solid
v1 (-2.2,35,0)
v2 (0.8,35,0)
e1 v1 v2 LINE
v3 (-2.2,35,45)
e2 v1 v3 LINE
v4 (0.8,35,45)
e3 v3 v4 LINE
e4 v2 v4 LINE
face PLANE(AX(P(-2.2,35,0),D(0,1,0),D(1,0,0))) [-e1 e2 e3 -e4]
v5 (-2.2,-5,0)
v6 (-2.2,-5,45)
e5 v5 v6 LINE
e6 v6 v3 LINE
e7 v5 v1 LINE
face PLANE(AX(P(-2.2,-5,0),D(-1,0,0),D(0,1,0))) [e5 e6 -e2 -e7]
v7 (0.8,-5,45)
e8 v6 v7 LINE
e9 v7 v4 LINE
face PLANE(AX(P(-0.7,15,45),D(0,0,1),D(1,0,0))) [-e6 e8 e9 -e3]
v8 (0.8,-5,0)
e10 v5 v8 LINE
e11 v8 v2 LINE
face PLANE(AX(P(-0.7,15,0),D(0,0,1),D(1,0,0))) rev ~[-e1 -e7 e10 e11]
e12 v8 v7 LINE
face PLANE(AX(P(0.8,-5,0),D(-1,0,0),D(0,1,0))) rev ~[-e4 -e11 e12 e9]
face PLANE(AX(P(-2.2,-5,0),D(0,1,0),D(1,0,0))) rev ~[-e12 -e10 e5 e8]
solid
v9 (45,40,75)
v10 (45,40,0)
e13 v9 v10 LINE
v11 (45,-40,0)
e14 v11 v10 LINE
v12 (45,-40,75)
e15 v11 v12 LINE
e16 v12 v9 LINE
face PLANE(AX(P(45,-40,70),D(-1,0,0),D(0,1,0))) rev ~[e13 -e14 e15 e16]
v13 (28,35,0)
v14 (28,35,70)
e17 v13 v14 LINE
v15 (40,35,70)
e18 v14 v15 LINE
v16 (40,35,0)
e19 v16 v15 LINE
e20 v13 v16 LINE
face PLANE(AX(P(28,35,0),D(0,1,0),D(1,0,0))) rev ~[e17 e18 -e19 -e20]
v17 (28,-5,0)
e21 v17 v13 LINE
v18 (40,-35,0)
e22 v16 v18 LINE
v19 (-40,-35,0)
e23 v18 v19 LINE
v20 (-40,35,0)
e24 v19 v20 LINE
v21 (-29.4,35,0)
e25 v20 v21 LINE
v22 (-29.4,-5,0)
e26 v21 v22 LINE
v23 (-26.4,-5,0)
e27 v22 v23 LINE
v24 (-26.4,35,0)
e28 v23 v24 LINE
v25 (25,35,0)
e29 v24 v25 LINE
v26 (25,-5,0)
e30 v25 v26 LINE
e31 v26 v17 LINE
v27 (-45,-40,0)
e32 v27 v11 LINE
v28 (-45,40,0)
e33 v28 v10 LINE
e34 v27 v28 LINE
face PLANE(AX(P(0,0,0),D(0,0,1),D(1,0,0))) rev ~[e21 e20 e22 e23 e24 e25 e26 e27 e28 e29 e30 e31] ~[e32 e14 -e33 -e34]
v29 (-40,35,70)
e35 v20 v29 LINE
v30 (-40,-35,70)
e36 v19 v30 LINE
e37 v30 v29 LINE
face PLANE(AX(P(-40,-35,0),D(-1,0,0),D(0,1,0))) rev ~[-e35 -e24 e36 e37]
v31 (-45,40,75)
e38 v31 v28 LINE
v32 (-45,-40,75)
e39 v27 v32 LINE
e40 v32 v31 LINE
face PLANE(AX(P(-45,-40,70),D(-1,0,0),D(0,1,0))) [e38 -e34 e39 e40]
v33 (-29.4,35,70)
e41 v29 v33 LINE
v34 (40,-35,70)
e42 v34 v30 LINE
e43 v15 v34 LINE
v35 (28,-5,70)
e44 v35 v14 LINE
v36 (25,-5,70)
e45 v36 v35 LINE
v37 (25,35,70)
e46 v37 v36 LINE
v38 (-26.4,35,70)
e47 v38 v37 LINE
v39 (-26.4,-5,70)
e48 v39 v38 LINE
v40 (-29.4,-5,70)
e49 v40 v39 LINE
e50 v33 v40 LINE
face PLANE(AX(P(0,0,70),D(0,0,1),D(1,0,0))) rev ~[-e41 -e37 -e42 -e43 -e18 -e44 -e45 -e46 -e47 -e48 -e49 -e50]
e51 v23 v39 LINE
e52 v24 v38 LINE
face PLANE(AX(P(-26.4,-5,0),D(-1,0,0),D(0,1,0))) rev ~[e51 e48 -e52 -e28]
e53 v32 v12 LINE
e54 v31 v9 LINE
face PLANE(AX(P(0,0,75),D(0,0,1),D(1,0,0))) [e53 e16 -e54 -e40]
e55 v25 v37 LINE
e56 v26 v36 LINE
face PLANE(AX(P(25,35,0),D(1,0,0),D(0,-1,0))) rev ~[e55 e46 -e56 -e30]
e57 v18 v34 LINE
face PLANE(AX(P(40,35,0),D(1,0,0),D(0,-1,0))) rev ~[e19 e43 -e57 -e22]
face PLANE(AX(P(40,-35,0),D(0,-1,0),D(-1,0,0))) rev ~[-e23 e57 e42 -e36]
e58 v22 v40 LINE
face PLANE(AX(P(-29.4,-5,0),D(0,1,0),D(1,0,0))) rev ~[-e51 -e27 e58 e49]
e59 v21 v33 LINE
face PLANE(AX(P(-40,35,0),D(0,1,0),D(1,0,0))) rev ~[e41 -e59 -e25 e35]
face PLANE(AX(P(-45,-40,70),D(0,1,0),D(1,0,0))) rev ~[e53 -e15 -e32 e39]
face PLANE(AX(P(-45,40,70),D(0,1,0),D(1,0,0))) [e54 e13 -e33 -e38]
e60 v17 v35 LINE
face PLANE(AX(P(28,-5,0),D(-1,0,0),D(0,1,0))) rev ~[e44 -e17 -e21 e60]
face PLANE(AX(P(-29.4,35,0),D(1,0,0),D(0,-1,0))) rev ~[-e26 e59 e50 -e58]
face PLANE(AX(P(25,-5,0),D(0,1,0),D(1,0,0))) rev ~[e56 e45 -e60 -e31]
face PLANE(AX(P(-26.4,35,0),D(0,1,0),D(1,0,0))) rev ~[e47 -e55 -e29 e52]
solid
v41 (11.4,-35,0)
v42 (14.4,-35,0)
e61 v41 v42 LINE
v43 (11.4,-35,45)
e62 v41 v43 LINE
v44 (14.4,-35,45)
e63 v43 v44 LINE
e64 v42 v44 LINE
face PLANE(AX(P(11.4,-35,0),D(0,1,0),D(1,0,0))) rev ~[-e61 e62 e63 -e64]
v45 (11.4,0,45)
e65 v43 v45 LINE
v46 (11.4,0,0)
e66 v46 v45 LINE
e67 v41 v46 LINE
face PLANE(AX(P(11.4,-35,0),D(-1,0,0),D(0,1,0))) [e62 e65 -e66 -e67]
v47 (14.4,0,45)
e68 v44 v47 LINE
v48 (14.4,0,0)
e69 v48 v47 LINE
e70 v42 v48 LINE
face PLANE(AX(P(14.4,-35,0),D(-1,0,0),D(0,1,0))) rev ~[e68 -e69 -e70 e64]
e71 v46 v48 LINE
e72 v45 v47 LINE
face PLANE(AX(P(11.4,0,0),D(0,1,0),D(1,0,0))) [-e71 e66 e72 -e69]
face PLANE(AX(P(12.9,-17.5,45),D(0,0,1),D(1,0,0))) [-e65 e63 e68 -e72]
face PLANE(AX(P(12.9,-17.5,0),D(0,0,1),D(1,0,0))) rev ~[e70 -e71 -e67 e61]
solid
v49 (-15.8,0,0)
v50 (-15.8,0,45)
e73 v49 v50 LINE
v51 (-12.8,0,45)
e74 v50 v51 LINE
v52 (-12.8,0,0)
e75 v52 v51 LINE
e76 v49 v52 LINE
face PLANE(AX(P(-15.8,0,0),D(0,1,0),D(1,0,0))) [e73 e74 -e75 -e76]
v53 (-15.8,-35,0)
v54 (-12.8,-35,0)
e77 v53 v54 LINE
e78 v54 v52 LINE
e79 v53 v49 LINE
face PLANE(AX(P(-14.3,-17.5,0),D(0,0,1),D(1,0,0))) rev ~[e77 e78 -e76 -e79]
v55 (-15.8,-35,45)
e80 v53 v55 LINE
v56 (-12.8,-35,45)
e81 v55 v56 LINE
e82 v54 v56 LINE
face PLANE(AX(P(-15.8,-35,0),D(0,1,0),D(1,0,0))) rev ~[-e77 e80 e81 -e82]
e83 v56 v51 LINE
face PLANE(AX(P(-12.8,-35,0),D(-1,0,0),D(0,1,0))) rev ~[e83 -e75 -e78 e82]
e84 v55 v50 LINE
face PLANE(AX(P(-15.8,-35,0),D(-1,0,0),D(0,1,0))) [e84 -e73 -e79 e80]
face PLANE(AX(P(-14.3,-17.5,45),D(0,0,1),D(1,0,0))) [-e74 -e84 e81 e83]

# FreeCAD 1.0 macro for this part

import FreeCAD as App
import Part
import Sketcher

V = App.Vector

doc = App.newDocument("Part")
body = doc.addObject("PartDesign::Body", "Body")
body.AllowCompound = True

sketch1 = body.newObject("Sketcher::SketchObject", "Sketch")
sketch1.AttachmentSupport = (doc.getObject("XY_Plane"), [""])
sketch1.MapMode = "FlatFace"
sketch1.addGeometry([
    Part.LineSegment(V(-15.8, 0, 0), V(-15.8, -35, 0)),
    Part.LineSegment(V(-15.8, -35, 0), V(-12.8, -35, 0)),
    Part.LineSegment(V(-12.8, -35, 0), V(-12.8, 0, 0)),
    Part.LineSegment(V(-12.8, 0, 0), V(-15.8, 0, 0)),
    Part.LineSegment(V(-2.2, 35, 0), V(-2.2, -5, 0)),
    Part.LineSegment(V(-2.2, -5, 0), V(0.8, -5, 0)),
    Part.LineSegment(V(0.8, -5, 0), V(0.8, 35, 0)),
    Part.LineSegment(V(0.8, 35, 0), V(-2.2, 35, 0)),
    Part.LineSegment(V(11.4, 0, 0), V(11.4, -35, 0)),
    Part.LineSegment(V(11.4, -35, 0), V(14.4, -35, 0)),
    Part.LineSegment(V(14.4, -35, 0), V(14.4, 0, 0)),
    Part.LineSegment(V(14.4, 0, 0), V(11.4, 0, 0)),
], False)
sketch1.addConstraint([
    Sketcher.Constraint("Coincident", 0, 2, 1, 1),
    Sketcher.Constraint("Coincident", 1, 2, 2, 1),
    Sketcher.Constraint("Coincident", 2, 2, 3, 1),
    Sketcher.Constraint("Coincident", 3, 2, 0, 1),
    Sketcher.Constraint("Coincident", 4, 2, 5, 1),
    Sketcher.Constraint("Coincident", 5, 2, 6, 1),
    Sketcher.Constraint("Coincident", 6, 2, 7, 1),
    Sketcher.Constraint("Coincident", 7, 2, 4, 1),
    Sketcher.Constraint("Coincident", 8, 2, 9, 1),
    Sketcher.Constraint("Coincident", 9, 2, 10, 1),
    Sketcher.Constraint("Coincident", 10, 2, 11, 1),
    Sketcher.Constraint("Coincident", 11, 2, 8, 1),
    Sketcher.Constraint("Vertical", 0),
    Sketcher.Constraint("Horizontal", 1),
    Sketcher.Constraint("Vertical", 2),
    Sketcher.Constraint("Horizontal", 3),
    Sketcher.Constraint("Vertical", 4),
    Sketcher.Constraint("Horizontal", 5),
    Sketcher.Constraint("Vertical", 6),
    Sketcher.Constraint("Horizontal", 7),
    Sketcher.Constraint("Vertical", 8),
    Sketcher.Constraint("Horizontal", 9),
    Sketcher.Constraint("Vertical", 10),
    Sketcher.Constraint("Horizontal", 11),
    Sketcher.Constraint("PointOnObject", 2, 2, -1),
    Sketcher.Constraint("PointOnObject", 10, 2, -1),
    Sketcher.Constraint("Horizontal", 1, 2, 8, 2),
    Sketcher.Constraint("Equal", 3, 5),
    Sketcher.Constraint("Equal", 7, 9),
    Sketcher.Constraint("DistanceX", 1, 1, 1, 2, 3.0),
    Sketcher.Constraint("DistanceY", 0, 2, 0, 1, 35.0),
    Sketcher.Constraint("DistanceY", 4, 2, 4, 1, 40.0),
    Sketcher.Constraint("DistanceY", 4, 2, -1, 1, 5.0),
    Sketcher.Constraint("DistanceX", 0, 2, -1, 1, 15.8),
    Sketcher.Constraint("DistanceX", 4, 2, -1, 1, 2.2),
    Sketcher.Constraint("DistanceX", -1, 1, 8, 2, 11.4),
])
pad1 = body.newObject("PartDesign::Pad", "Pad")
pad1.Profile = sketch1
pad1.Length = 45
body2 = doc.addObject("PartDesign::Body", "Body001")

sketch2 = body2.newObject("Sketcher::SketchObject", "Sketch001")
sketch2.AttachmentSupport = (doc.getObject("XY_Plane001"), [""])
sketch2.MapMode = "FlatFace"
sketch2.addGeometry([
    Part.LineSegment(V(-45, 40, 0), V(-45, -40, 0)),
    Part.LineSegment(V(-45, -40, 0), V(45, -40, 0)),
    Part.LineSegment(V(45, -40, 0), V(45, 40, 0)),
    Part.LineSegment(V(45, 40, 0), V(-45, 40, 0)),
    Part.LineSegment(V(28, -5, 0), V(28, 35, 0)),
    Part.LineSegment(V(28, 35, 0), V(40, 35, 0)),
    Part.LineSegment(V(40, 35, 0), V(40, -35, 0)),
    Part.LineSegment(V(40, -35, 0), V(-40, -35, 0)),
    Part.LineSegment(V(-40, -35, 0), V(-40, 35, 0)),
    Part.LineSegment(V(-40, 35, 0), V(-29.4, 35, 0)),
    Part.LineSegment(V(-29.4, 35, 0), V(-29.4, -5, 0)),
    Part.LineSegment(V(-29.4, -5, 0), V(-26.4, -5, 0)),
    Part.LineSegment(V(-26.4, -5, 0), V(-26.4, 35, 0)),
    Part.LineSegment(V(-26.4, 35, 0), V(25, 35, 0)),
    Part.LineSegment(V(25, 35, 0), V(25, -5, 0)),
    Part.LineSegment(V(25, -5, 0), V(28, -5, 0)),
], False)
sketch2.addConstraint([
    Sketcher.Constraint("Coincident", 0, 2, 1, 1),
    Sketcher.Constraint("Coincident", 1, 2, 2, 1),
    Sketcher.Constraint("Coincident", 2, 2, 3, 1),
    Sketcher.Constraint("Coincident", 3, 2, 0, 1),
    Sketcher.Constraint("Coincident", 4, 2, 5, 1),
    Sketcher.Constraint("Coincident", 5, 2, 6, 1),
    Sketcher.Constraint("Coincident", 6, 2, 7, 1),
    Sketcher.Constraint("Coincident", 7, 2, 8, 1),
    Sketcher.Constraint("Coincident", 8, 2, 9, 1),
    Sketcher.Constraint("Coincident", 9, 2, 10, 1),
    Sketcher.Constraint("Coincident", 10, 2, 11, 1),
    Sketcher.Constraint("Coincident", 11, 2, 12, 1),
    Sketcher.Constraint("Coincident", 12, 2, 13, 1),
    Sketcher.Constraint("Coincident", 13, 2, 14, 1),
    Sketcher.Constraint("Coincident", 14, 2, 15, 1),
    Sketcher.Constraint("Coincident", 15, 2, 4, 1),
    Sketcher.Constraint("Vertical", 0),
    Sketcher.Constraint("Horizontal", 1),
    Sketcher.Constraint("Vertical", 2),
    Sketcher.Constraint("Horizontal", 3),
    Sketcher.Constraint("Vertical", 4),
    Sketcher.Constraint("Horizontal", 5),
    Sketcher.Constraint("Vertical", 6),
    Sketcher.Constraint("Horizontal", 7),
    Sketcher.Constraint("Vertical", 8),
    Sketcher.Constraint("Horizontal", 9),
    Sketcher.Constraint("Vertical", 10),
    Sketcher.Constraint("Horizontal", 11),
    Sketcher.Constraint("Vertical", 12),
    Sketcher.Constraint("Horizontal", 13),
    Sketcher.Constraint("Vertical", 14),
    Sketcher.Constraint("Horizontal", 15),
    Sketcher.Constraint("Symmetric", 0, 2, 2, 2, -1, 1),
    Sketcher.Constraint("Symmetric", 5, 2, 7, 2, -1, 1),
    Sketcher.Constraint("Horizontal", 5, 2, 8, 2),
    Sketcher.Constraint("Horizontal", 9, 2, 12, 2),
    Sketcher.Constraint("Horizontal", 11, 2, 14, 2),
    Sketcher.Constraint("Equal", 11, 15),
    Sketcher.Constraint("Equal", 7, 0),
    Sketcher.Constraint("DistanceX", 1, 1, 1, 2, 90.0),
    Sketcher.Constraint("DistanceX", 5, 1, 5, 2, 12.0),
    Sketcher.Constraint("DistanceX", 7, 2, 7, 1, 80.0),
    Sketcher.Constraint("DistanceX", 11, 1, 11, 2, 3.0),
    Sketcher.Constraint("DistanceY", 4, 1, 4, 2, 40.0),
    Sketcher.Constraint("DistanceY", 6, 2, 6, 1, 70.0),
    Sketcher.Constraint("DistanceX", 9, 1, 9, 2, 10.6),
])
pad2 = body2.newObject("PartDesign::Pad", "Pad001")
pad2.Profile = sketch2
pad2.Length = 70

sketch3 = body2.newObject("Sketcher::SketchObject", "Sketch002")
sketch3.AttachmentSupport = (doc.getObject("XY_Plane001"), [""])
sketch3.MapMode = "FlatFace"
sketch3.AttachmentOffset = App.Placement(V(0, 0, 70), App.Rotation())
sketch3.addGeometry([
    Part.LineSegment(V(-45, 40, 0), V(-45, -40, 0)),
    Part.LineSegment(V(-45, -40, 0), V(45, -40, 0)),
    Part.LineSegment(V(45, -40, 0), V(45, 40, 0)),
    Part.LineSegment(V(45, 40, 0), V(-45, 40, 0)),
], False)
sketch3.addConstraint([
    Sketcher.Constraint("Coincident", 0, 2, 1, 1),
    Sketcher.Constraint("Coincident", 1, 2, 2, 1),
    Sketcher.Constraint("Coincident", 2, 2, 3, 1),
    Sketcher.Constraint("Coincident", 3, 2, 0, 1),
    Sketcher.Constraint("Vertical", 0),
    Sketcher.Constraint("Horizontal", 1),
    Sketcher.Constraint("Vertical", 2),
    Sketcher.Constraint("Horizontal", 3),
    Sketcher.Constraint("Symmetric", 0, 2, 2, 2, -1, 1),
    Sketcher.Constraint("DistanceX", 1, 1, 1, 2, 90.0),
    Sketcher.Constraint("DistanceY", 0, 2, 0, 1, 80.0),
])
pad3 = body2.newObject("PartDesign::Pad", "Pad002")
pad3.Profile = sketch3
pad3.Length = 5

doc.recompute()
